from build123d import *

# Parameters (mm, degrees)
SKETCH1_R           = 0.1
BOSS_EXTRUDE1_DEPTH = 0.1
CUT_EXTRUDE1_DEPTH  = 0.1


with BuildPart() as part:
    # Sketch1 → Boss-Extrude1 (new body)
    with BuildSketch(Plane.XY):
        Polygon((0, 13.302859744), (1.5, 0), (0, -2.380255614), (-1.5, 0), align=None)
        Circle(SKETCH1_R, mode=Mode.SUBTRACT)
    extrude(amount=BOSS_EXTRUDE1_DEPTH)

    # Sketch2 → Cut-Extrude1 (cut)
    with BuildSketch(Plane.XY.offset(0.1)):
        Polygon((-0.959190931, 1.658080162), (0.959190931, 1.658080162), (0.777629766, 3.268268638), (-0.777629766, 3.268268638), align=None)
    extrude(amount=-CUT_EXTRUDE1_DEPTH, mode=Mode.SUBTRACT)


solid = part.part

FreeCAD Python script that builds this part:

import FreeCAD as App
import Part
import Sketcher


def add_polygon(sketch, points):
    """Adds a closed chain of lines whose ends are joined by coincident constraints."""
    first, n = sketch.GeometryCount, len(points)
    for a, b in zip(points, points[1:] + points[:1]):
        sketch.addGeometry(Part.LineSegment(App.Vector(*a, 0), App.Vector(*b, 0)), False)
    for i in range(n):
        sketch.addConstraint(Sketcher.Constraint("Coincident", first + i, 2, first + (i + 1) % n, 1))

doc = App.newDocument("Part")
params = doc.addObject("Spreadsheet::Sheet", "Params")
for row, (alias, value) in enumerate([
    ("sketch1_diameter", "0.2 mm"),
    ("pad1_length", "0.1 mm"),
    ("pocket1_length", "0.1 mm"),
], start=1):
    params.set(f"A{row}", alias)
    params.set(f"B{row}", "=" + value)
    params.setAlias(f"B{row}", alias)

body = doc.addObject("PartDesign::Body", "Body")

# Sketch on XY plane
sketch1 = body.newObject("Sketcher::SketchObject", "Sketch")
sketch1.AttachmentSupport = (doc.getObject("XY_Plane"), [""])
sketch1.MapMode = "FlatFace"
add_polygon(sketch1, [(1.5, 0), (0, 13.30286), (-1.5, 0), (0, -2.380256)])  # lines 0-3
sketch1.addGeometry(Part.Circle(App.Vector(0, 0, 0), App.Vector(0, 0, 1), 0.1), False)  # 4
sketch1.addConstraint(Sketcher.Constraint("Coincident", 4, 3, -1, 1))
sketch1.addConstraint(Sketcher.Constraint("Symmetric", 1, 2, 3, 2, -1, 1))
sketch1.addConstraint(Sketcher.Constraint("PointOnObject", 0, 2, -2))
sketch1.addConstraint(Sketcher.Constraint("PointOnObject", 1, 2, -1))
sketch1.addConstraint(Sketcher.Constraint("PointOnObject", 2, 2, -2))
sketch1.addConstraint(Sketcher.Constraint("Diameter", 4, 0.2))
sketch1.addConstraint(Sketcher.Constraint("DistanceX", 1, 2, 3, 2, 3.0))
sketch1.addConstraint(Sketcher.Constraint("Distance", 0, 13.387161))
sketch1.addConstraint(Sketcher.Constraint("Distance", 2, 2.813471))
sketch1.setExpression("Constraints[9]", "Params.sketch1_diameter")
pad1 = body.newObject("PartDesign::Pad", "Pad")
pad1.Profile = sketch1
pad1.setExpression("Length", "Params.pad1_length")

# Sketch on XY plane
sketch2 = body.newObject("Sketcher::SketchObject", "Sketch001")
sketch2.AttachmentSupport = (doc.getObject("XY_Plane"), [""])
sketch2.MapMode = "FlatFace"
sketch2.AttachmentOffset = App.Placement(App.Vector(0, 0, 0.1), App.Rotation())
add_polygon(sketch2, [(-0.959191, 1.65808), (0.959191, 1.65808), (0.77763, 3.268269), (-0.77763, 3.268269)])  # lines 0-3
sketch2.addConstraint(Sketcher.Constraint("Horizontal", 0))
sketch2.addConstraint(Sketcher.Constraint("Horizontal", 2))
sketch2.addConstraint(Sketcher.Constraint("Equal", 1, 3))
sketch2.addConstraint(Sketcher.Constraint("DistanceX", 0, 1, 0, 2, 1.918382))
sketch2.addConstraint(Sketcher.Constraint("DistanceX", 2, 2, 2, 1, 1.55526))
sketch2.addConstraint(Sketcher.Constraint("DistanceX", -1, 1, 0, 2, 0.959191))
sketch2.addConstraint(Sketcher.Constraint("DistanceY", -1, 1, 0, 2, 1.65808))
sketch2.addConstraint(Sketcher.Constraint("DistanceY", -1, 1, 1, 2, 3.268269))
pocket1 = body.newObject("PartDesign::Pocket", "Pocket")
pocket1.Profile = sketch2
pocket1.setExpression("Length", "Params.pocket1_length")

doc.recompute()
